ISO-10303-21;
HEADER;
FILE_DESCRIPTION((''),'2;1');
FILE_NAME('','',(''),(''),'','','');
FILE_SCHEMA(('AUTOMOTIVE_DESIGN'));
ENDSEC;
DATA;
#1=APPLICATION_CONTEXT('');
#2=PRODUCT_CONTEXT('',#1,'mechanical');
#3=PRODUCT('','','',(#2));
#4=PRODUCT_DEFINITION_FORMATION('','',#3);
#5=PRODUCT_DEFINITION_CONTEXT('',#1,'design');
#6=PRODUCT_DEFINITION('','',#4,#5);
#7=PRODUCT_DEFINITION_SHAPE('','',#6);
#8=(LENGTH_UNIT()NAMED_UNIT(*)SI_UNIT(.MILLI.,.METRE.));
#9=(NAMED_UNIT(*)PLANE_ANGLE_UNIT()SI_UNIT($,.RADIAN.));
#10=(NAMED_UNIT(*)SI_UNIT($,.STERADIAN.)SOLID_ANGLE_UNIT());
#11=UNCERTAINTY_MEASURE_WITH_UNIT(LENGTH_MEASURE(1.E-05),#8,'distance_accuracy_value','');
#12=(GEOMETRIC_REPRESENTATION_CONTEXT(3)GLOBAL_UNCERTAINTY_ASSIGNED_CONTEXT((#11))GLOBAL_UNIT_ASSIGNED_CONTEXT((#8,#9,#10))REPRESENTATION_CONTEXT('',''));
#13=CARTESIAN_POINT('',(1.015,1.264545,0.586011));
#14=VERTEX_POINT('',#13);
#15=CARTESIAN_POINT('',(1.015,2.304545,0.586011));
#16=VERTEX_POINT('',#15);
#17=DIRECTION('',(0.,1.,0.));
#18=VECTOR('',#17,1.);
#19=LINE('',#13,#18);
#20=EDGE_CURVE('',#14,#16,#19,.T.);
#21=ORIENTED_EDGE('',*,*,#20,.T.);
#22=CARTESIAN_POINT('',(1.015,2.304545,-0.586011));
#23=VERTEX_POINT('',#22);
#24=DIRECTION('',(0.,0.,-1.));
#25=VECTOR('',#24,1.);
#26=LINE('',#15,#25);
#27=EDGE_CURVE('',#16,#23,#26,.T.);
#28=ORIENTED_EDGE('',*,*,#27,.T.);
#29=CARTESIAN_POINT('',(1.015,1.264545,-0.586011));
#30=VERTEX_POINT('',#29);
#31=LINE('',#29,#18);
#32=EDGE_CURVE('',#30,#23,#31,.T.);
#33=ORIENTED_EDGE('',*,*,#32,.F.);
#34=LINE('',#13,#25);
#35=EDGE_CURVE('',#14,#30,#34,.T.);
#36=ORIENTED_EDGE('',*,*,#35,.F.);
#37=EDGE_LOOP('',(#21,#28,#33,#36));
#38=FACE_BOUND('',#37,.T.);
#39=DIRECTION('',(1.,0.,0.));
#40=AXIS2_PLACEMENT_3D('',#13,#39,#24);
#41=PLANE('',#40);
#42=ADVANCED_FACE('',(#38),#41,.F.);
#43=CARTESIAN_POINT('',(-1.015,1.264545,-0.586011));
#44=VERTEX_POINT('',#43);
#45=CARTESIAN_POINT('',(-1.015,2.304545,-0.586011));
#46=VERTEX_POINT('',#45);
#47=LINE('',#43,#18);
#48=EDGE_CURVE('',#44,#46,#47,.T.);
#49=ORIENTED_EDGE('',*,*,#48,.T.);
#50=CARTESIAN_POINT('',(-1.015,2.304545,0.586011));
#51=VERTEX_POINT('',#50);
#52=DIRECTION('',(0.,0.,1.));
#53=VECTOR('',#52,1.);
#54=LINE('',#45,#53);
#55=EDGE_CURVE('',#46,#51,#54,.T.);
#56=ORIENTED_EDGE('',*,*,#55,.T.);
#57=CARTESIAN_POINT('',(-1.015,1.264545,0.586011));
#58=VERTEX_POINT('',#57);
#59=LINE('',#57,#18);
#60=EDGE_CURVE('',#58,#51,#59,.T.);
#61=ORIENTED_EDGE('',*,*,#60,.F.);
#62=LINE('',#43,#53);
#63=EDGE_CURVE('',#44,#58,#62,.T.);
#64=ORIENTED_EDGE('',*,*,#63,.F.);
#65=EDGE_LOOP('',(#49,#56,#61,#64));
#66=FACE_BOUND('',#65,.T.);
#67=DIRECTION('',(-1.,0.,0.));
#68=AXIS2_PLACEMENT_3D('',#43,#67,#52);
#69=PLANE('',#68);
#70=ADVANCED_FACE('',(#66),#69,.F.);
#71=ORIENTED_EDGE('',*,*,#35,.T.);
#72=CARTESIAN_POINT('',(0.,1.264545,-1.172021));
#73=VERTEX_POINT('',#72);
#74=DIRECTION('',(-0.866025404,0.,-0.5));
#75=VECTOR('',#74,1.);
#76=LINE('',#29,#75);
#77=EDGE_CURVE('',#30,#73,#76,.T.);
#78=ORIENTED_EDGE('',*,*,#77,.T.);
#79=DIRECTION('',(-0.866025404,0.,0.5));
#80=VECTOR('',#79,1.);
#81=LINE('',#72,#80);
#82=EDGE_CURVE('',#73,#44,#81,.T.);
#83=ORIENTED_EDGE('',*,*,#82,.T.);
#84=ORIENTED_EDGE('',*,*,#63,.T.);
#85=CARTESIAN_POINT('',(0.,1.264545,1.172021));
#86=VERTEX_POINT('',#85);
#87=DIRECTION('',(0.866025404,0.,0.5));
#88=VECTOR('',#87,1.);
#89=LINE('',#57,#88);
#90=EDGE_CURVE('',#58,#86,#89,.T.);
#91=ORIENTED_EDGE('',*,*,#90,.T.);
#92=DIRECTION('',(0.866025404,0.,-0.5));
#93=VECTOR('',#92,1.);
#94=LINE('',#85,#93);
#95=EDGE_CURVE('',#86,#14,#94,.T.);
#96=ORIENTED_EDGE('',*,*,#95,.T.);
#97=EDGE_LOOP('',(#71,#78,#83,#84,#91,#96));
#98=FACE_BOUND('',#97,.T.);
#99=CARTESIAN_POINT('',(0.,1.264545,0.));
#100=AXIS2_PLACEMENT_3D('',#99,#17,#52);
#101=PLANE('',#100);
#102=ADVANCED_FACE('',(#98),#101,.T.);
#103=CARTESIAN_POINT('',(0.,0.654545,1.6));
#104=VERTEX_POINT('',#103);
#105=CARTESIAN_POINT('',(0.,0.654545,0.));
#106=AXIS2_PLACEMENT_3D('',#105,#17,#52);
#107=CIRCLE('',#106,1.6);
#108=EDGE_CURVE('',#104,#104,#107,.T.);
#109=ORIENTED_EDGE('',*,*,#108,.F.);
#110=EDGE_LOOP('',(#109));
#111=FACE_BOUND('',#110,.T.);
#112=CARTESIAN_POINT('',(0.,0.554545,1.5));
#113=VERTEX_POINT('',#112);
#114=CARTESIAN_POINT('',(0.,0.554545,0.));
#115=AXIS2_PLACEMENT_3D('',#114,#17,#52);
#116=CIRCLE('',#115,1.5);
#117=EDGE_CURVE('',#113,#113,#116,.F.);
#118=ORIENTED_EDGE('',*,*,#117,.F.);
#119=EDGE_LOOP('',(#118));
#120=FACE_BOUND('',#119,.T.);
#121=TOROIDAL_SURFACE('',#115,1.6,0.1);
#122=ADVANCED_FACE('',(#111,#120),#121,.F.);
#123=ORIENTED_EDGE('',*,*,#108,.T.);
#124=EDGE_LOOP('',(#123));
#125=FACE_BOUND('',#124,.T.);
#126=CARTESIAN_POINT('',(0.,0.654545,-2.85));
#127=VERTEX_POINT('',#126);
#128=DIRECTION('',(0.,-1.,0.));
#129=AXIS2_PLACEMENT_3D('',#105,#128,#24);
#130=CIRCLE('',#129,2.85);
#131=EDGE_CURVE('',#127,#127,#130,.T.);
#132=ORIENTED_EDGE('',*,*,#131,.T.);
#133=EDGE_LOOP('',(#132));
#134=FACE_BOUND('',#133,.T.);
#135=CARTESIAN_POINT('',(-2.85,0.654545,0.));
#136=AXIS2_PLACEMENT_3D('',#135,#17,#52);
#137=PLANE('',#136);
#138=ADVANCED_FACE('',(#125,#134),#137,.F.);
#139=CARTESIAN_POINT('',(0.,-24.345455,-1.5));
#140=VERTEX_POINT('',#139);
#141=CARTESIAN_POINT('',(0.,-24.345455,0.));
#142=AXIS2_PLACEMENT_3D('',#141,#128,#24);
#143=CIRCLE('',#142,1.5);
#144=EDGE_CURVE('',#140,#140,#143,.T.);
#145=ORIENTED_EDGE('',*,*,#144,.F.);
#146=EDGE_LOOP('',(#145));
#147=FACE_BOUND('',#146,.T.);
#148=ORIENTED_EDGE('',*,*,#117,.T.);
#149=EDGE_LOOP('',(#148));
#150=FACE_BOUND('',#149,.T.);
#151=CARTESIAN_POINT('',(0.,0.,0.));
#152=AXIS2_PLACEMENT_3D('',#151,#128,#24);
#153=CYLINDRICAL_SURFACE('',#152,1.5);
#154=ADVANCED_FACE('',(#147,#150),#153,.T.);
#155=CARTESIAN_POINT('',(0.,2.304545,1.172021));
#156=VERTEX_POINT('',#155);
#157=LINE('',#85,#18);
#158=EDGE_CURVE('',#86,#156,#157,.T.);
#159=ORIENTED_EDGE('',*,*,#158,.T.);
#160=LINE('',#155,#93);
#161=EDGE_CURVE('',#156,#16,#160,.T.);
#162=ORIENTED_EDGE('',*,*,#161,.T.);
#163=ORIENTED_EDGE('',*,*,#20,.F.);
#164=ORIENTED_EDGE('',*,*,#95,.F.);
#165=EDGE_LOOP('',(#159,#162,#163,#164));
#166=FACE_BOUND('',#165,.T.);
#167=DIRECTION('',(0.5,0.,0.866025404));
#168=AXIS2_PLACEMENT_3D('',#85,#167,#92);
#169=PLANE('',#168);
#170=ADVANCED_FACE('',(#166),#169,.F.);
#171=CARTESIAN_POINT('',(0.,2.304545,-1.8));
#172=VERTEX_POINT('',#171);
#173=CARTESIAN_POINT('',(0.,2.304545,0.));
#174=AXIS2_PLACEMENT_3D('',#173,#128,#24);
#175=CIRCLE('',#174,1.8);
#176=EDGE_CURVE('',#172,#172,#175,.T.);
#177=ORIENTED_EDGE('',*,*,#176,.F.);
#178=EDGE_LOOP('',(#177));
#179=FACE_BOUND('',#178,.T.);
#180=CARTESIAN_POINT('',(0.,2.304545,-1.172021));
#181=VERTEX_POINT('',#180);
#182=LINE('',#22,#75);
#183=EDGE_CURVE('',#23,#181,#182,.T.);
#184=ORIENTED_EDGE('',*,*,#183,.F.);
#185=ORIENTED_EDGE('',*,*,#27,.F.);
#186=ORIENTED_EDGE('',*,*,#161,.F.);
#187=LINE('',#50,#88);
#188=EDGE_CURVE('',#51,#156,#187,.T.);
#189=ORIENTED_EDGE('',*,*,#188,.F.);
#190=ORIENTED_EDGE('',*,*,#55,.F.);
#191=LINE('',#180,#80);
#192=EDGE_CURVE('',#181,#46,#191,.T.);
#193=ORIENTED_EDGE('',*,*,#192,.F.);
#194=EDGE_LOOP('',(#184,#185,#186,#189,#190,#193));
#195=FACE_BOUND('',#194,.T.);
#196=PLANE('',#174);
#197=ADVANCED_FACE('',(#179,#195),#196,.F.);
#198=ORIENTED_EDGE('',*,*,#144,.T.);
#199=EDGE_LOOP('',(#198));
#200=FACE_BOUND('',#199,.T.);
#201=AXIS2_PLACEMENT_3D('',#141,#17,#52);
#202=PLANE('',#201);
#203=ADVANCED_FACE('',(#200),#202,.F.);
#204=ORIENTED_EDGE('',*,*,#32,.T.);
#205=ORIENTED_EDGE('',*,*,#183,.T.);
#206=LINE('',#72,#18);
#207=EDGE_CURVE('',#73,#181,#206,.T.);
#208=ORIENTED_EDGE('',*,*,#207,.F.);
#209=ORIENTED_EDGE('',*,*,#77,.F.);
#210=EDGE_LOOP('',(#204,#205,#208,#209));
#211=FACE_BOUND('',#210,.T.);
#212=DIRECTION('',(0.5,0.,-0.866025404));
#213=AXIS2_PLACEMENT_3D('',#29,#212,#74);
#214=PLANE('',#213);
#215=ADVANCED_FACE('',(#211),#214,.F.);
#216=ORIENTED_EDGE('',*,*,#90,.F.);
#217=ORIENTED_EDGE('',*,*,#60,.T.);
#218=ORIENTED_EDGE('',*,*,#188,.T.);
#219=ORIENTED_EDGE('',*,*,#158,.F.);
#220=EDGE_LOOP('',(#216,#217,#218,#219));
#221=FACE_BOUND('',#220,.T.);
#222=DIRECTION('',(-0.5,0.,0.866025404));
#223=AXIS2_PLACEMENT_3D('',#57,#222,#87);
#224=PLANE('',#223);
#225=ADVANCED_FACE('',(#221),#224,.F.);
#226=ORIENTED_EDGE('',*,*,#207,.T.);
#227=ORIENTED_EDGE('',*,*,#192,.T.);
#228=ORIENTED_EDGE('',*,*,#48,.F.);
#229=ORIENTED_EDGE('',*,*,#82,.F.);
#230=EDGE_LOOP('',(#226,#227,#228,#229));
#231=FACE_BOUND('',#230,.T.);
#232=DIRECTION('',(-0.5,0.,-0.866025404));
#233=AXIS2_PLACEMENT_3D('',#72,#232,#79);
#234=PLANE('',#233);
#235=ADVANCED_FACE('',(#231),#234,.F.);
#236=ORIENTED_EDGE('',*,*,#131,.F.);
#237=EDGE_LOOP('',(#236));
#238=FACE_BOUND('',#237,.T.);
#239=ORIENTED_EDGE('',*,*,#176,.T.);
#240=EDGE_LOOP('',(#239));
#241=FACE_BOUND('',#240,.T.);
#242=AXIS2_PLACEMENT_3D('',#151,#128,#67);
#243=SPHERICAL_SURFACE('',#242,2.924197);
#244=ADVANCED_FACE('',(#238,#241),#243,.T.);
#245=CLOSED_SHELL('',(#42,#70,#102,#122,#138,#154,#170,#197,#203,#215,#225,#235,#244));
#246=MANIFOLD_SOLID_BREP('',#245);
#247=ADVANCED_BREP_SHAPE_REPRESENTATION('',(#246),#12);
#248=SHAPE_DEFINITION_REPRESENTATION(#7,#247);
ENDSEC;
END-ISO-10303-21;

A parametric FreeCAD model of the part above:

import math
import FreeCAD as App
import Part
import Sketcher

V = App.Vector
Q = App.Units.Quantity


def edges_at(feature, points):
    """Names of the edges that pass closest to the given points."""
    edges = feature.Shape.Edges
    near = lambda p: min(range(len(edges)), key=lambda i: edges[i].distToShape(Part.Vertex(*p))[0])
    return sorted({f"Edge{near(p) + 1}" for p in points})


def add_polygon(sketch, points):
    """Adds a closed chain of lines whose ends are joined by coincident constraints."""
    first, n = sketch.GeometryCount, len(points)
    for a, b in zip(points, points[1:] + points[:1]):
        sketch.addGeometry(Part.LineSegment(App.Vector(*a, 0), App.Vector(*b, 0)), False)
    for i in range(n):
        sketch.addConstraint(Sketcher.Constraint("Coincident", first + i, 2, first + (i + 1) % n, 1))

doc = App.newDocument("Part")
body = doc.addObject("PartDesign::Body", "Body")

# Sketch on XY plane
sketch1 = body.newObject("Sketcher::SketchObject", "Sketch")
sketch1.AttachmentSupport = (doc.getObject("XY_Plane"), [""])
sketch1.MapMode = "FlatFace"
sketch1.addGeometry([
    Part.LineSegment(V(0, 2.3, 0), V(-1.8, 2.3, 0)),  # 0
    Part.ArcOfCircle(Part.Circle(V(0, 0, 0), V(0, 0, 1), 2.9), math.radians(128), math.radians(167)),  # 1
    Part.LineSegment(V(-2.9, 0.7, 0), V(-1.5, 0.7, 0)),  # 2
    Part.LineSegment(V(-1.5, 0.7, 0), V(-1.5, -24.3, 0)),  # 3
    Part.LineSegment(V(-1.5, -24.3, 0), V(0, -24.3, 0)),  # 4
    Part.LineSegment(V(0, -24.3, 0), V(0, 2.3, 0)),  # 5
], False)
sketch1.addConstraint([
    Sketcher.Constraint("Coincident", 0, 2, 1, 1),
    Sketcher.Constraint("Coincident", 1, 2, 2, 1),
    Sketcher.Constraint("Coincident", 2, 2, 3, 1),
    Sketcher.Constraint("Coincident", 3, 2, 4, 1),
    Sketcher.Constraint("Coincident", 4, 2, 5, 1),
    Sketcher.Constraint("Coincident", 5, 2, 0, 1),
    Sketcher.Constraint("Horizontal", 0),
    Sketcher.Constraint("Horizontal", 2),
    Sketcher.Constraint("Vertical", 3),
    Sketcher.Constraint("Horizontal", 4),
    Sketcher.Constraint("Vertical", 5),
    Sketcher.Constraint("Coincident", 1, 3, -1, 1),
    Sketcher.Constraint("PointOnObject", 4, 2, -2),
    Sketcher.Constraint("DistanceY", 3, 2, 3, 1, 25.0),
    Sketcher.Constraint("DistanceX", 0, 2, 0, 1, 1.8),
    Sketcher.Constraint("DistanceX", 4, 1, 4, 2, 1.5),
    Sketcher.Constraint("DistanceX", 2, 1, 2, 2, 1.35),
    Sketcher.Constraint("DistanceY", 5, 1, 5, 2, 26.65),
])
revolution = body.newObject("PartDesign::Revolution", "Revolution")
revolution.Profile = sketch1
revolution.ReferenceAxis = (sketch1, ["V_Axis"])
revolution.Angle = 360

# Sketch on XZ plane
sketch2 = body.newObject("Sketcher::SketchObject", "Sketch001")
sketch2.AttachmentSupport = (doc.getObject("XZ_Plane"), [""])
sketch2.MapMode = "FlatFace"
sketch2.AttachmentOffset = App.Placement(V(0, 0, -2.304545), App.Rotation())
add_polygon(sketch2, [(0, 1.2), (1, 0.6), (1, -0.6), (0, -1.2), (-1, -0.6), (-1, 0.6)])  # lines 0-5
sketch2.addConstraint([
    Sketcher.Constraint("Vertical", 1),
    Sketcher.Constraint("Vertical", 4),
    Sketcher.Constraint("Symmetric", 0, 2, 3, 2, -1, 1),
    Sketcher.Constraint("Symmetric", 2, 2, 5, 2, -1, 1),
    Sketcher.Constraint("PointOnObject", 2, 2, -2),
    Sketcher.Constraint("Parallel", 2, 5),
    Sketcher.Constraint("Horizontal", 1, 2, 3, 2),
    Sketcher.Constraint("Angle", 0, Q("-30 deg")),
    Sketcher.Constraint("DistanceX", 3, 2, 1, 2, 2.03),
    Sketcher.Constraint("DistanceY", 1, 2, 1, 1, 1.172021),
])
pocket1 = body.newObject("PartDesign::Pocket", "Pocket")
pocket1.Profile = sketch2
pocket1.Length = 1.04
pocket1.Reversed = True
doc.recompute()

fillet = body.newObject("PartDesign::Fillet", "Fillet")
fillet.Base = (pocket1, edges_at(pocket1, [(1.5, 0.655, 0)]))
fillet.Radius = 0.1

doc.recompute()
